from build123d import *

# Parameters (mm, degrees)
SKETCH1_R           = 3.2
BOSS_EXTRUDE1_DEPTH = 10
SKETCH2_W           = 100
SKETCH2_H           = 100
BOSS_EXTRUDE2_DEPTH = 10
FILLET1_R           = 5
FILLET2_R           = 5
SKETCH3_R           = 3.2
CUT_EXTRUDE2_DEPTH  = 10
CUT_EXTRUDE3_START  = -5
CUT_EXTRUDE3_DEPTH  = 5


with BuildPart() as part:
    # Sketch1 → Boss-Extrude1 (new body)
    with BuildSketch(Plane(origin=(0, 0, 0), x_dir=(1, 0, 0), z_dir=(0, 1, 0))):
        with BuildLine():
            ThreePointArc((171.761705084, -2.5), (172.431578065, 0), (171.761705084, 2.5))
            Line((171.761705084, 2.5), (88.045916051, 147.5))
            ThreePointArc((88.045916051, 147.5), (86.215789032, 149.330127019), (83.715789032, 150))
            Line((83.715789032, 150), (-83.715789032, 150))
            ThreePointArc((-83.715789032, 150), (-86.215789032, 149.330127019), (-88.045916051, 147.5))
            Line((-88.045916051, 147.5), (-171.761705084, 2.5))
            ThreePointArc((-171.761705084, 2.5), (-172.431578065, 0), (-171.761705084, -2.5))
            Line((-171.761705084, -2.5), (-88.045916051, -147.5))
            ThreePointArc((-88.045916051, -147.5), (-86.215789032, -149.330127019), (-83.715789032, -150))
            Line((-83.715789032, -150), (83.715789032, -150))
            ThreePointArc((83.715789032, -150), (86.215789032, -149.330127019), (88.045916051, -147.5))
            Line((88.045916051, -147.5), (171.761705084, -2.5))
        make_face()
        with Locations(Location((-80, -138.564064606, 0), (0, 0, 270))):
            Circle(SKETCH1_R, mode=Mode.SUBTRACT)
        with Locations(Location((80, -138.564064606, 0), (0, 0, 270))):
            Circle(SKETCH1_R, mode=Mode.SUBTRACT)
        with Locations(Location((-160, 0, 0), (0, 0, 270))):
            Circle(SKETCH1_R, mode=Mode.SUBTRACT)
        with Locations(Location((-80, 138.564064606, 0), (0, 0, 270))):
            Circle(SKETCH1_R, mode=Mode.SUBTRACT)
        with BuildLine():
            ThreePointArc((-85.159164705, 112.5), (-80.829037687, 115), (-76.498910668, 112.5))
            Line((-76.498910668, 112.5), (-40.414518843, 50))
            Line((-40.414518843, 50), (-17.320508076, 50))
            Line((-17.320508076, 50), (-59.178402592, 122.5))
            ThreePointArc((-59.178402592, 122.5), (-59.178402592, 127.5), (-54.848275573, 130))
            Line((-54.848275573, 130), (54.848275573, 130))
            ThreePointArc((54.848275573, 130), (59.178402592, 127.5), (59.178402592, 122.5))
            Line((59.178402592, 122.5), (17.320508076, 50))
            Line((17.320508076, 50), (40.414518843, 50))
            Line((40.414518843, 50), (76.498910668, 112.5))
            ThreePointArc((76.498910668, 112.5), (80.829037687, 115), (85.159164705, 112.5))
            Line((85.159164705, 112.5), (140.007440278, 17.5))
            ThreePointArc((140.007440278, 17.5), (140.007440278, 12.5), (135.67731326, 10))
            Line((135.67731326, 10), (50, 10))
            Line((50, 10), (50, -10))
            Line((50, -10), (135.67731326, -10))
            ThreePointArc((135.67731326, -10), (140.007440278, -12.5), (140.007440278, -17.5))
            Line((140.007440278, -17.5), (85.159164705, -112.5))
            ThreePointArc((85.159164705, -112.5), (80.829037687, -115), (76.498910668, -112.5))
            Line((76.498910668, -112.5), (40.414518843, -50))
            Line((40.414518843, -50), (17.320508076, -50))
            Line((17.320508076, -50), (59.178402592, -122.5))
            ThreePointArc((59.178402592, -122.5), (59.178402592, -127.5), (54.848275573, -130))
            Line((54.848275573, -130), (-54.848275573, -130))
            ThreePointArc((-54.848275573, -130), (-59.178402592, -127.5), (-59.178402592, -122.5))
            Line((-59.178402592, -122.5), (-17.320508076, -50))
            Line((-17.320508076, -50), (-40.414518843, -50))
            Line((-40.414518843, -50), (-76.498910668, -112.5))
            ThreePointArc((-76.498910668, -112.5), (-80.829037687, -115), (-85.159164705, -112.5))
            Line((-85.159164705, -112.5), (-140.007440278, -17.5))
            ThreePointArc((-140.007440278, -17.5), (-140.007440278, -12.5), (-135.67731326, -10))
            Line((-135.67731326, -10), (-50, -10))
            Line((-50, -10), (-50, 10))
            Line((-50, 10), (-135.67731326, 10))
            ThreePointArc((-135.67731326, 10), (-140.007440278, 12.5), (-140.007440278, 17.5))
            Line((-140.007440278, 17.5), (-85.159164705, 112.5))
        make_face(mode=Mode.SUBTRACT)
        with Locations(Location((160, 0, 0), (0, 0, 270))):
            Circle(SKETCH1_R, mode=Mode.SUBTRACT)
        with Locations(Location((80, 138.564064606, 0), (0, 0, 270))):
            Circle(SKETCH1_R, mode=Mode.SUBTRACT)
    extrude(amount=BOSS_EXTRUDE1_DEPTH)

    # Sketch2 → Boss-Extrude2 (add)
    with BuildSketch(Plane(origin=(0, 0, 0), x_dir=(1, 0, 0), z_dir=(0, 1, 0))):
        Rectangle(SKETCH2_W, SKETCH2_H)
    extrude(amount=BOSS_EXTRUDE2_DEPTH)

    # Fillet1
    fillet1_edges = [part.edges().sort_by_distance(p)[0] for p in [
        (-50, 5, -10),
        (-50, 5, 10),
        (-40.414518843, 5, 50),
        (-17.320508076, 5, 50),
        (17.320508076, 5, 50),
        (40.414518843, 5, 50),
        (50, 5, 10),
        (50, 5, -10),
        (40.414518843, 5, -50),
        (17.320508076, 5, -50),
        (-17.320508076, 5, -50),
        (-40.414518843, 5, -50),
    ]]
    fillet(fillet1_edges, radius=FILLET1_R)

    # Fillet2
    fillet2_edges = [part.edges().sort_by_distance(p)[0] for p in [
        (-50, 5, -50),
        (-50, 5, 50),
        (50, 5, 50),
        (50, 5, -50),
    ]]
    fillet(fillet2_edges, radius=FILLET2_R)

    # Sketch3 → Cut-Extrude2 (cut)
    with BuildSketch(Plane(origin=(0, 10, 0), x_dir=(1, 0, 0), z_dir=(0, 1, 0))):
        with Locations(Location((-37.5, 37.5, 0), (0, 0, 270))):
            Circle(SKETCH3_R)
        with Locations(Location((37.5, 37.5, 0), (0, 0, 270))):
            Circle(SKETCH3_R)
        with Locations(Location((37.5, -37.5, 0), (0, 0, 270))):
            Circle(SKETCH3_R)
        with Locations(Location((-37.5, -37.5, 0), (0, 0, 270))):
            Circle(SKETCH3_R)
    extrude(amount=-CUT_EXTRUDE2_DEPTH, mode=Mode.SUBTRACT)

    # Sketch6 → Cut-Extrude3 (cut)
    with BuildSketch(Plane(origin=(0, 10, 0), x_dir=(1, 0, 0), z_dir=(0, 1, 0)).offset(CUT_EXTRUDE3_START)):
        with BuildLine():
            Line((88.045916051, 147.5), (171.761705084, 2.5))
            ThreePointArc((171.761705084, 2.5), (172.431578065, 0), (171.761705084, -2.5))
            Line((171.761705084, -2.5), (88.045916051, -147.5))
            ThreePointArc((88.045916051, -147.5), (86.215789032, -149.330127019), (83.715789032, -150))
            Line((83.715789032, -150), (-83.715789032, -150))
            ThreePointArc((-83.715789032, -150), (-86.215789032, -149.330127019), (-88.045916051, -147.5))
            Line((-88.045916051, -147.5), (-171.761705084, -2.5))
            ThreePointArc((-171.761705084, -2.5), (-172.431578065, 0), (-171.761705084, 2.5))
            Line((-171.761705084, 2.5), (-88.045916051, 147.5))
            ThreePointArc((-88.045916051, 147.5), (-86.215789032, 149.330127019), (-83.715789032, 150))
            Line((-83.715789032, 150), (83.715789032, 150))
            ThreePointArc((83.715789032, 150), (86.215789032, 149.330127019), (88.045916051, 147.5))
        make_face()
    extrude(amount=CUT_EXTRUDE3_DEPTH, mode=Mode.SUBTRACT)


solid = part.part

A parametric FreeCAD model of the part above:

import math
import FreeCAD as App
import Part
import Sketcher
from FreeCAD import Vector
Q = App.Units.Quantity


def edges_at(feature, points):
    """Names of the edges that pass closest to the given points."""
    edges = feature.Shape.Edges
    near = lambda p: min(range(len(edges)), key=lambda i: edges[i].distToShape(Part.Vertex(*p))[0])
    return sorted({f"Edge{near(p) + 1}" for p in points})


def add_polygon(sketch, points):
    """Adds a closed chain of lines whose ends are joined by coincident constraints."""
    first, n = sketch.GeometryCount, len(points)
    for a, b in zip(points, points[1:] + points[:1]):
        sketch.addGeometry(Part.LineSegment(App.Vector(*a, 0), App.Vector(*b, 0)), False)
    for i in range(n):
        sketch.addConstraint(Sketcher.Constraint("Coincident", first + i, 2, first + (i + 1) % n, 1))

doc = App.newDocument("Part")
body = doc.addObject("PartDesign::Body", "Body")

# Sketch on XZ plane
sketch1 = body.newObject("Sketcher::SketchObject", "Sketch")
sketch1.AttachmentSupport = (doc.getObject("XZ_Plane"), [""])
sketch1.MapMode = "FlatFace"
sketch1.addGeometry(Part.ArcOfCircle(Part.Circle(Vector(167.431578, 0, 0), Vector(0, 0, 1), 5), math.radians(-30), math.radians(30)), False)
sketch1.addGeometry(Part.LineSegment(Vector(171.761705, -2.5, 0), Vector(88.045916, -147.5, 0)), False)
sketch1.addGeometry(Part.ArcOfCircle(Part.Circle(Vector(83.715789, -145, 0), Vector(0, 0, 1), 5), math.radians(-90), math.radians(-30)), False)
sketch1.addGeometry(Part.LineSegment(Vector(83.715789, -150, 0), Vector(-83.715789, -150, 0)), False)
sketch1.addGeometry(Part.ArcOfCircle(Part.Circle(Vector(-83.715789, -145, 0), Vector(0, 0, 1), 5), math.radians(-150), math.radians(-90)), False)
sketch1.addGeometry(Part.LineSegment(Vector(-88.045916, -147.5, 0), Vector(-171.761705, -2.5, 0)), False)
sketch1.addGeometry(Part.ArcOfCircle(Part.Circle(Vector(-167.431578, 0, 0), Vector(0, 0, 1), 5), math.radians(150), math.radians(210)), False)
sketch1.addGeometry(Part.LineSegment(Vector(-171.761705, 2.5, 0), Vector(-88.045916, 147.5, 0)), False)
sketch1.addGeometry(Part.ArcOfCircle(Part.Circle(Vector(-83.715789, 145, 0), Vector(0, 0, 1), 5), math.radians(90), math.radians(150)), False)
sketch1.addGeometry(Part.LineSegment(Vector(-83.715789, 150, 0), Vector(83.715789, 150, 0)), False)
sketch1.addGeometry(Part.ArcOfCircle(Part.Circle(Vector(83.715789, 145, 0), Vector(0, 0, 1), 5), math.radians(30), math.radians(90)), False)
sketch1.addGeometry(Part.LineSegment(Vector(88.045916, 147.5, 0), Vector(171.761705, 2.5, 0)), False)
sketch1.addGeometry(Part.Circle(Vector(-80, 138.564065, 0), Vector(0, 0, 1), 3.2), False)
sketch1.addGeometry(Part.Circle(Vector(80, 138.564065, 0), Vector(0, 0, 1), 3.2), False)
sketch1.addGeometry(Part.Circle(Vector(-160, 0, 0), Vector(0, 0, 1), 3.2), False)
sketch1.addGeometry(Part.Circle(Vector(-80, -138.564065, 0), Vector(0, 0, 1), 3.2), False)
sketch1.addGeometry(Part.LineSegment(Vector(-140.00744, -17.5, 0), Vector(-85.159165, -112.5, 0)), False)
sketch1.addGeometry(Part.ArcOfCircle(Part.Circle(Vector(-80.829038, -110, 0), Vector(0, 0, 1), 5), math.radians(-150), math.radians(-30)), False)
sketch1.addGeometry(Part.LineSegment(Vector(-76.498911, -112.5, 0), Vector(-40.414519, -50, 0)), False)
sketch1.addGeometry(Part.LineSegment(Vector(-40.414519, -50, 0), Vector(-17.320508, -50, 0)), False)
sketch1.addGeometry(Part.LineSegment(Vector(-17.320508, -50, 0), Vector(-59.178403, -122.5, 0)), False)
sketch1.addGeometry(Part.ArcOfCircle(Part.Circle(Vector(-54.848276, -125, 0), Vector(0, 0, 1), 5), math.radians(150), math.radians(270)), False)
sketch1.addGeometry(Part.LineSegment(Vector(-54.848276, -130, 0), Vector(54.848276, -130, 0)), False)
sketch1.addGeometry(Part.ArcOfCircle(Part.Circle(Vector(54.848276, -125, 0), Vector(0, 0, 1), 5), math.radians(-90), math.radians(30)), False)
sketch1.addGeometry(Part.LineSegment(Vector(59.178403, -122.5, 0), Vector(17.320508, -50, 0)), False)
sketch1.addGeometry(Part.LineSegment(Vector(17.320508, -50, 0), Vector(40.414519, -50, 0)), False)
sketch1.addGeometry(Part.LineSegment(Vector(40.414519, -50, 0), Vector(76.498911, -112.5, 0)), False)
sketch1.addGeometry(Part.ArcOfCircle(Part.Circle(Vector(80.829038, -110, 0), Vector(0, 0, 1), 5), math.radians(-150), math.radians(-30)), False)
sketch1.addGeometry(Part.LineSegment(Vector(85.159165, -112.5, 0), Vector(140.00744, -17.5, 0)), False)
sketch1.addGeometry(Part.ArcOfCircle(Part.Circle(Vector(135.677313, -15, 0), Vector(0, 0, 1), 5), math.radians(-30), math.radians(90)), False)
sketch1.addGeometry(Part.LineSegment(Vector(135.677313, -10, 0), Vector(50, -10, 0)), False)
sketch1.addGeometry(Part.LineSegment(Vector(50, -10, 0), Vector(50, 10, 0)), False)
sketch1.addGeometry(Part.LineSegment(Vector(50, 10, 0), Vector(135.677313, 10, 0)), False)
sketch1.addGeometry(Part.ArcOfCircle(Part.Circle(Vector(135.677313, 15, 0), Vector(0, 0, 1), 5), math.radians(-90), math.radians(30)), False)
sketch1.addGeometry(Part.LineSegment(Vector(140.00744, 17.5, 0), Vector(85.159165, 112.5, 0)), False)
sketch1.addGeometry(Part.ArcOfCircle(Part.Circle(Vector(80.829038, 110, 0), Vector(0, 0, 1), 5), math.radians(30), math.radians(150)), False)
sketch1.addGeometry(Part.LineSegment(Vector(76.498911, 112.5, 0), Vector(40.414519, 50, 0)), False)
sketch1.addGeometry(Part.LineSegment(Vector(40.414519, 50, 0), Vector(17.320508, 50, 0)), False)
sketch1.addGeometry(Part.LineSegment(Vector(17.320508, 50, 0), Vector(59.178403, 122.5, 0)), False)
sketch1.addGeometry(Part.ArcOfCircle(Part.Circle(Vector(54.848276, 125, 0), Vector(0, 0, 1), 5), math.radians(-30), math.radians(90)), False)
sketch1.addGeometry(Part.LineSegment(Vector(54.848276, 130, 0), Vector(-54.848276, 130, 0)), False)
sketch1.addGeometry(Part.ArcOfCircle(Part.Circle(Vector(-54.848276, 125, 0), Vector(0, 0, 1), 5), math.radians(90), math.radians(210)), False)
sketch1.addGeometry(Part.LineSegment(Vector(-59.178403, 122.5, 0), Vector(-17.320508, 50, 0)), False)
sketch1.addGeometry(Part.LineSegment(Vector(-17.320508, 50, 0), Vector(-40.414519, 50, 0)), False)
sketch1.addGeometry(Part.LineSegment(Vector(-40.414519, 50, 0), Vector(-76.498911, 112.5, 0)), False)
sketch1.addGeometry(Part.ArcOfCircle(Part.Circle(Vector(-80.829038, 110, 0), Vector(0, 0, 1), 5), math.radians(30), math.radians(150)), False)
sketch1.addGeometry(Part.LineSegment(Vector(-85.159165, 112.5, 0), Vector(-140.00744, 17.5, 0)), False)
sketch1.addGeometry(Part.ArcOfCircle(Part.Circle(Vector(-135.677313, 15, 0), Vector(0, 0, 1), 5), math.radians(150), math.radians(270)), False)
sketch1.addGeometry(Part.LineSegment(Vector(-135.677313, 10, 0), Vector(-50, 10, 0)), False)
sketch1.addGeometry(Part.LineSegment(Vector(-50, 10, 0), Vector(-50, -10, 0)), False)
sketch1.addGeometry(Part.LineSegment(Vector(-50, -10, 0), Vector(-135.677313, -10, 0)), False)
sketch1.addGeometry(Part.ArcOfCircle(Part.Circle(Vector(-135.677313, -15, 0), Vector(0, 0, 1), 5), math.radians(90), math.radians(210)), False)
sketch1.addGeometry(Part.Circle(Vector(160, 0, 0), Vector(0, 0, 1), 3.2), False)
sketch1.addGeometry(Part.Circle(Vector(80, -138.564065, 0), Vector(0, 0, 1), 3.2), False)
sketch1.addConstraint(Sketcher.Constraint("Tangent", 0, 1, 1, 1))
sketch1.addConstraint(Sketcher.Constraint("Tangent", 1, 2, 2, 2))
sketch1.addConstraint(Sketcher.Constraint("Tangent", 2, 1, 3, 1))
sketch1.addConstraint(Sketcher.Constraint("Tangent", 3, 2, 4, 2))
sketch1.addConstraint(Sketcher.Constraint("Tangent", 4, 1, 5, 1))
sketch1.addConstraint(Sketcher.Constraint("Tangent", 5, 2, 6, 2))
sketch1.addConstraint(Sketcher.Constraint("Tangent", 6, 1, 7, 1))
sketch1.addConstraint(Sketcher.Constraint("Tangent", 7, 2, 8, 2))
sketch1.addConstraint(Sketcher.Constraint("Tangent", 8, 1, 9, 1))
sketch1.addConstraint(Sketcher.Constraint("Tangent", 9, 2, 10, 2))
sketch1.addConstraint(Sketcher.Constraint("Tangent", 10, 1, 11, 1))
sketch1.addConstraint(Sketcher.Constraint("Tangent", 11, 2, 0, 2))
sketch1.addConstraint(Sketcher.Constraint("Tangent", 16, 2, 17, 1))
sketch1.addConstraint(Sketcher.Constraint("Tangent", 17, 2, 18, 1))
sketch1.addConstraint(Sketcher.Constraint("Coincident", 18, 2, 19, 1))
sketch1.addConstraint(Sketcher.Constraint("Coincident", 19, 2, 20, 1))
sketch1.addConstraint(Sketcher.Constraint("Tangent", 20, 2, 21, 1))
sketch1.addConstraint(Sketcher.Constraint("Tangent", 21, 2, 22, 1))
sketch1.addConstraint(Sketcher.Constraint("Tangent", 22, 2, 23, 1))
sketch1.addConstraint(Sketcher.Constraint("Tangent", 23, 2, 24, 1))
sketch1.addConstraint(Sketcher.Constraint("Coincident", 24, 2, 25, 1))
sketch1.addConstraint(Sketcher.Constraint("Coincident", 25, 2, 26, 1))
sketch1.addConstraint(Sketcher.Constraint("Tangent", 26, 2, 27, 1))
sketch1.addConstraint(Sketcher.Constraint("Tangent", 27, 2, 28, 1))
sketch1.addConstraint(Sketcher.Constraint("Tangent", 28, 2, 29, 1))
sketch1.addConstraint(Sketcher.Constraint("Tangent", 29, 2, 30, 1))
sketch1.addConstraint(Sketcher.Constraint("Coincident", 30, 2, 31, 1))
sketch1.addConstraint(Sketcher.Constraint("Coincident", 31, 2, 32, 1))
sketch1.addConstraint(Sketcher.Constraint("Tangent", 32, 2, 33, 1))
sketch1.addConstraint(Sketcher.Constraint("Tangent", 33, 2, 34, 1))
sketch1.addConstraint(Sketcher.Constraint("Tangent", 34, 2, 35, 1))
sketch1.addConstraint(Sketcher.Constraint("Tangent", 35, 2, 36, 1))
sketch1.addConstraint(Sketcher.Constraint("Coincident", 36, 2, 37, 1))
sketch1.addConstraint(Sketcher.Constraint("Coincident", 37, 2, 38, 1))
sketch1.addConstraint(Sketcher.Constraint("Tangent", 38, 2, 39, 1))
sketch1.addConstraint(Sketcher.Constraint("Tangent", 39, 2, 40, 1))
sketch1.addConstraint(Sketcher.Constraint("Tangent", 40, 2, 41, 1))
sketch1.addConstraint(Sketcher.Constraint("Tangent", 41, 2, 42, 1))
sketch1.addConstraint(Sketcher.Constraint("Coincident", 42, 2, 43, 1))
sketch1.addConstraint(Sketcher.Constraint("Coincident", 43, 2, 44, 1))
sketch1.addConstraint(Sketcher.Constraint("Tangent", 44, 2, 45, 1))
sketch1.addConstraint(Sketcher.Constraint("Tangent", 45, 2, 46, 1))
sketch1.addConstraint(Sketcher.Constraint("Tangent", 46, 2, 47, 1))
sketch1.addConstraint(Sketcher.Constraint("Tangent", 47, 2, 48, 1))
sketch1.addConstraint(Sketcher.Constraint("Coincident", 48, 2, 49, 1))
sketch1.addConstraint(Sketcher.Constraint("Coincident", 49, 2, 50, 1))
sketch1.addConstraint(Sketcher.Constraint("Tangent", 50, 2, 51, 1))
sketch1.addConstraint(Sketcher.Constraint("Tangent", 51, 2, 16, 1))
sketch1.addConstraint(Sketcher.Constraint("Horizontal", 3))
sketch1.addConstraint(Sketcher.Constraint("Horizontal", 9))
sketch1.addConstraint(Sketcher.Constraint("Horizontal", 19))
sketch1.addConstraint(Sketcher.Constraint("Horizontal", 22))
sketch1.addConstraint(Sketcher.Constraint("Horizontal", 25))
sketch1.addConstraint(Sketcher.Constraint("Horizontal", 30))
sketch1.addConstraint(Sketcher.Constraint("Vertical", 31))
sketch1.addConstraint(Sketcher.Constraint("Horizontal", 32))
sketch1.addConstraint(Sketcher.Constraint("Horizontal", 37))
sketch1.addConstraint(Sketcher.Constraint("Horizontal", 40))
sketch1.addConstraint(Sketcher.Constraint("Horizontal", 43))
sketch1.addConstraint(Sketcher.Constraint("Horizontal", 48))
sketch1.addConstraint(Sketcher.Constraint("Vertical", 49))
sketch1.addConstraint(Sketcher.Constraint("Horizontal", 50))
sketch1.addConstraint(Sketcher.Constraint("Equal", 0, 2))
sketch1.addConstraint(Sketcher.Constraint("Equal", 2, 4))
sketch1.addConstraint(Sketcher.Constraint("Equal", 4, 6))
sketch1.addConstraint(Sketcher.Constraint("Equal", 6, 8))
sketch1.addConstraint(Sketcher.Constraint("Equal", 8, 10))
sketch1.addConstraint(Sketcher.Constraint("Equal", 12, 13))
sketch1.addConstraint(Sketcher.Constraint("Equal", 13, 14))
sketch1.addConstraint(Sketcher.Constraint("Equal", 14, 15))
sketch1.addConstraint(Sketcher.Constraint("Equal", 10, 17))
sketch1.addConstraint(Sketcher.Constraint("Equal", 17, 21))
sketch1.addConstraint(Sketcher.Constraint("Equal", 21, 23))
sketch1.addConstraint(Sketcher.Constraint("Equal", 23, 27))
sketch1.addConstraint(Sketcher.Constraint("Equal", 27, 29))
sketch1.addConstraint(Sketcher.Constraint("Equal", 29, 33))
sketch1.addConstraint(Sketcher.Constraint("Equal", 33, 35))
sketch1.addConstraint(Sketcher.Constraint("Equal", 35, 39))
sketch1.addConstraint(Sketcher.Constraint("Equal", 39, 41))
sketch1.addConstraint(Sketcher.Constraint("Equal", 41, 45))
sketch1.addConstraint(Sketcher.Constraint("Equal", 45, 47))
sketch1.addConstraint(Sketcher.Constraint("Equal", 47, 51))
sketch1.addConstraint(Sketcher.Constraint("Equal", 15, 52))
sketch1.addConstraint(Sketcher.Constraint("Equal", 52, 53))
sketch1.addConstraint(Sketcher.Constraint("Symmetric", 0, 3, 6, 3, -1, 1))
sketch1.addConstraint(Sketcher.Constraint("Symmetric", 2, 3, 8, 3, -1, 1))
sketch1.addConstraint(Sketcher.Constraint("Symmetric", 13, 3, 15, 3, -1, 1))
sketch1.addConstraint(Sketcher.Constraint("Symmetric", 17, 3, 35, 3, -1, 1))
sketch1.addConstraint(Sketcher.Constraint("Symmetric", 21, 3, 39, 3, -1, 1))
sketch1.addConstraint(Sketcher.Constraint("Symmetric", 27, 3, 45, 3, -1, 1))
sketch1.addConstraint(Sketcher.Constraint("Symmetric", 29, 3, 47, 3, -1, 1))
sketch1.addConstraint(Sketcher.Constraint("Symmetric", 33, 3, 51, 3, -1, 1))
sketch1.addConstraint(Sketcher.Constraint("Symmetric", 14, 3, 52, 3, -1, 1))
sketch1.addConstraint(Sketcher.Constraint("Symmetric", 12, 3, 53, 3, -1, 1))
sketch1.addConstraint(Sketcher.Constraint("Symmetric", 18, 2, 36, 2, -1, 1))
sketch1.addConstraint(Sketcher.Constraint("Symmetric", 23, 2, 41, 2, -1, 1))
sketch1.addConstraint(Sketcher.Constraint("Symmetric", 25, 2, 43, 2, -1, 1))
sketch1.addConstraint(Sketcher.Constraint("Symmetric", 12, 3, 13, 3, -2))
sketch1.addConstraint(Sketcher.Constraint("Symmetric", 17, 3, 27, 3, -2))
sketch1.addConstraint(Sketcher.Constraint("Symmetric", 33, 3, 47, 3, -2))
sketch1.addConstraint(Sketcher.Constraint("Symmetric", 1, 2, 4, 1, -2))
sketch1.addConstraint(Sketcher.Constraint("Symmetric", 20, 2, 23, 2, -2))
sketch1.addConstraint(Sketcher.Constraint("Symmetric", 18, 2, 25, 2, -2))
sketch1.addConstraint(Sketcher.Constraint("PointOnObject", 14, 3, -1))
sketch1.addConstraint(Sketcher.Constraint("Parallel", 5, 11))
sketch1.addConstraint(Sketcher.Constraint("Parallel", 11, 16))
sketch1.addConstraint(Sketcher.Constraint("Parallel", 7, 18))
sketch1.addConstraint(Sketcher.Constraint("Parallel", 18, 20))
sketch1.addConstraint(Sketcher.Constraint("Parallel", 36, 38))
sketch1.addConstraint(Sketcher.Constraint("Equal", 32, 48))
sketch1.addConstraint(Sketcher.Constraint("Radius", 0, Q("5 mm")))
sketch1.addConstraint(Sketcher.Constraint("Diameter", 12, Q("6.4 mm")))
sketch1.addConstraint(Sketcher.Constraint("DistanceY", 31, 1, 31, 2, Q("20 mm")))
sketch1.addConstraint(Sketcher.Constraint("Angle", 1, Q("-120 deg")))
sketch1.addConstraint(Sketcher.Constraint("DistanceY", 2, 3, -1, 1, Q("145 mm")))
sketch1.addConstraint(Sketcher.Constraint("DistanceX", 12, 3, -1, 1, Q("80 mm")))
sketch1.addConstraint(Sketcher.Constraint("DistanceX", 14, 3, -1, 1, Q("160 mm")))
sketch1.addConstraint(Sketcher.Constraint("DistanceY", 17, 3, -1, 1, Q("110 mm")))
sketch1.addConstraint(Sketcher.Constraint("DistanceY", 21, 3, -1, 1, Q("125 mm")))
sketch1.addConstraint(Sketcher.Constraint("DistanceY", 18, 2, -1, 1, Q("50 mm")))
sketch1.addConstraint(Sketcher.Constraint("DistanceX", -1, 1, 30, 2, Q("50 mm")))
sketch1.addConstraint(Sketcher.Constraint("DistanceX", 3, 2, 3, 1, Q("167.431578 mm")))
sketch1.addConstraint(Sketcher.Constraint("DistanceX", 19, 1, 19, 2, Q("23.094011 mm")))
sketch1.addConstraint(Sketcher.Constraint("DistanceX", 22, 1, 22, 2, Q("109.696551 mm")))
sketch1.addConstraint(Sketcher.Constraint("DistanceY", -1, 1, 12, 3, Q("138.564065 mm")))
pad1 = body.newObject("PartDesign::Pad", "Pad")
pad1.Profile = sketch1
pad1.Length = 10
pad1.Reversed = True

# Sketch on XZ plane
sketch2 = body.newObject("Sketcher::SketchObject", "Sketch001")
sketch2.AttachmentSupport = (doc.getObject("XZ_Plane"), [""])
sketch2.MapMode = "FlatFace"
add_polygon(sketch2, [(-50, -50), (-50, 50), (50, 50), (50, -50)])  # lines 0-3
sketch2.addConstraint(Sketcher.Constraint("Vertical", 0))
sketch2.addConstraint(Sketcher.Constraint("Horizontal", 1))
sketch2.addConstraint(Sketcher.Constraint("Vertical", 2))
sketch2.addConstraint(Sketcher.Constraint("Horizontal", 3))
sketch2.addConstraint(Sketcher.Constraint("Symmetric", 0, 2, 2, 2, -1, 1))
sketch2.addConstraint(Sketcher.Constraint("Equal", 3, 0))
sketch2.addConstraint(Sketcher.Constraint("DistanceX", 1, 1, 1, 2, Q("100 mm")))
pad2 = body.newObject("PartDesign::Pad", "Pad001")
pad2.Profile = sketch2
pad2.Length = 10
pad2.Reversed = True
doc.recompute()

fillet = body.newObject("PartDesign::Fillet", "Fillet")
fillet.Base = (pad2, edges_at(pad2, [
    (-50, 5, -10),
    (-50, 5, 10),
    (-40.415, 5, 50),
    (-17.321, 5, 50),
    (17.321, 5, 50),
    (40.415, 5, 50),
    (50, 5, 10),
    (50, 5, -10),
    (40.415, 5, -50),
    (17.321, 5, -50),
    (-17.321, 5, -50),
    (-40.415, 5, -50),
]))
fillet.Radius = 5
doc.recompute()

fillet2 = body.newObject("PartDesign::Fillet", "Fillet001")
fillet2.Base = (fillet, edges_at(fillet, [
    (-50, 5, -50),
    (-50, 5, 50),
    (50, 5, 50),
    (50, 5, -50),
]))
fillet2.Radius = 5

# Sketch on XZ plane
sketch3 = body.newObject("Sketcher::SketchObject", "Sketch002")
sketch3.AttachmentSupport = (doc.getObject("XZ_Plane"), [""])
sketch3.MapMode = "FlatFace"
sketch3.AttachmentOffset = App.Placement(Vector(0, 0, -10), App.Rotation())
sketch3.addGeometry(Part.Circle(Vector(-37.5, -37.5, 0), Vector(0, 0, 1), 3.2), False)
sketch3.addGeometry(Part.Circle(Vector(37.5, -37.5, 0), Vector(0, 0, 1), 3.2), False)
sketch3.addGeometry(Part.Circle(Vector(37.5, 37.5, 0), Vector(0, 0, 1), 3.2), False)
sketch3.addGeometry(Part.Circle(Vector(-37.5, 37.5, 0), Vector(0, 0, 1), 3.2), False)
sketch3.addConstraint(Sketcher.Constraint("Equal", 0, 1))
sketch3.addConstraint(Sketcher.Constraint("Equal", 1, 2))
sketch3.addConstraint(Sketcher.Constraint("Equal", 2, 3))
sketch3.addConstraint(Sketcher.Constraint("Symmetric", 0, 3, 2, 3, -1, 1))
sketch3.addConstraint(Sketcher.Constraint("Symmetric", 1, 3, 3, 3, -1, 1))
sketch3.addConstraint(Sketcher.Constraint("Symmetric", 0, 3, 1, 3, -2))
sketch3.addConstraint(Sketcher.Constraint("Diameter", 0, Q("6.4 mm")))
sketch3.addConstraint(Sketcher.Constraint("DistanceX", 0, 3, 1, 3, Q("75 mm")))
sketch3.addConstraint(Sketcher.Constraint("DistanceY", 1, 3, 2, 3, Q("75 mm")))
pocket1 = body.newObject("PartDesign::Pocket", "Pocket")
pocket1.Profile = sketch3
pocket1.Length = 10
pocket1.Reversed = True

# Sketch on XZ plane
sketch4 = body.newObject("Sketcher::SketchObject", "Sketch003")
sketch4.AttachmentSupport = (doc.getObject("XZ_Plane"), [""])
sketch4.MapMode = "FlatFace"
sketch4.AttachmentOffset = App.Placement(Vector(0, 0, -5), App.Rotation())
sketch4.addGeometry(Part.LineSegment(Vector(171.761705, -2.5, 0), Vector(88.045916, -147.5, 0)), False)
sketch4.addGeometry(Part.ArcOfCircle(Part.Circle(Vector(83.715789, -145, 0), Vector(0, 0, 1), 5), math.radians(-90), math.radians(-30)), False)
sketch4.addGeometry(Part.LineSegment(Vector(83.715789, -150, 0), Vector(-83.715789, -150, 0)), False)
sketch4.addGeometry(Part.ArcOfCircle(Part.Circle(Vector(-83.715789, -145, 0), Vector(0, 0, 1), 5), math.radians(-150), math.radians(-90)), False)
sketch4.addGeometry(Part.LineSegment(Vector(-88.045916, -147.5, 0), Vector(-171.761705, -2.5, 0)), False)
sketch4.addGeometry(Part.ArcOfCircle(Part.Circle(Vector(-167.431578, 0, 0), Vector(0, 0, 1), 5), math.radians(150), math.radians(210)), False)
sketch4.addGeometry(Part.LineSegment(Vector(-171.761705, 2.5, 0), Vector(-88.045916, 147.5, 0)), False)
sketch4.addGeometry(Part.ArcOfCircle(Part.Circle(Vector(-83.715789, 145, 0), Vector(0, 0, 1), 5), math.radians(90), math.radians(150)), False)
sketch4.addGeometry(Part.LineSegment(Vector(-83.715789, 150, 0), Vector(83.715789, 150, 0)), False)
sketch4.addGeometry(Part.ArcOfCircle(Part.Circle(Vector(83.715789, 145, 0), Vector(0, 0, 1), 5), math.radians(30), math.radians(90)), False)
sketch4.addGeometry(Part.LineSegment(Vector(88.045916, 147.5, 0), Vector(171.761705, 2.5, 0)), False)
sketch4.addGeometry(Part.ArcOfCircle(Part.Circle(Vector(167.431578, 0, 0), Vector(0, 0, 1), 5), math.radians(-30), math.radians(30)), False)
sketch4.addConstraint(Sketcher.Constraint("Tangent", 0, 2, 1, 2))
sketch4.addConstraint(Sketcher.Constraint("Tangent", 1, 1, 2, 1))
sketch4.addConstraint(Sketcher.Constraint("Tangent", 2, 2, 3, 2))
sketch4.addConstraint(Sketcher.Constraint("Tangent", 3, 1, 4, 1))
sketch4.addConstraint(Sketcher.Constraint("Tangent", 4, 2, 5, 2))
sketch4.addConstraint(Sketcher.Constraint("Tangent", 5, 1, 6, 1))
sketch4.addConstraint(Sketcher.Constraint("Tangent", 6, 2, 7, 2))
sketch4.addConstraint(Sketcher.Constraint("Tangent", 7, 1, 8, 1))
sketch4.addConstraint(Sketcher.Constraint("Tangent", 8, 2, 9, 2))
sketch4.addConstraint(Sketcher.Constraint("Tangent", 9, 1, 10, 1))
sketch4.addConstraint(Sketcher.Constraint("Tangent", 10, 2, 11, 2))
sketch4.addConstraint(Sketcher.Constraint("Tangent", 11, 1, 0, 1))
sketch4.addConstraint(Sketcher.Constraint("Horizontal", 2))
sketch4.addConstraint(Sketcher.Constraint("Horizontal", 8))
sketch4.addConstraint(Sketcher.Constraint("Equal", 1, 3))
sketch4.addConstraint(Sketcher.Constraint("Equal", 3, 5))
sketch4.addConstraint(Sketcher.Constraint("Equal", 5, 7))
sketch4.addConstraint(Sketcher.Constraint("Equal", 7, 9))
sketch4.addConstraint(Sketcher.Constraint("Equal", 9, 11))
sketch4.addConstraint(Sketcher.Constraint("Symmetric", 1, 3, 7, 3, -1, 1))
sketch4.addConstraint(Sketcher.Constraint("Symmetric", 5, 3, 11, 3, -1, 1))
sketch4.addConstraint(Sketcher.Constraint("Symmetric", 0, 2, 3, 1, -2))
sketch4.addConstraint(Sketcher.Constraint("Parallel", 4, 10))
sketch4.addConstraint(Sketcher.Constraint("Radius", 1, Q("5 mm")))
sketch4.addConstraint(Sketcher.Constraint("Angle", 0, Q("-120 deg")))
sketch4.addConstraint(Sketcher.Constraint("DistanceY", 1, 3, -1, 1, Q("145 mm")))
sketch4.addConstraint(Sketcher.Constraint("DistanceX", 2, 2, 2, 1, Q("167.431578 mm")))
pocket2 = body.newObject("PartDesign::Pocket", "Pocket001")
pocket2.Profile = sketch4
pocket2.Length = 5

doc.recompute()
